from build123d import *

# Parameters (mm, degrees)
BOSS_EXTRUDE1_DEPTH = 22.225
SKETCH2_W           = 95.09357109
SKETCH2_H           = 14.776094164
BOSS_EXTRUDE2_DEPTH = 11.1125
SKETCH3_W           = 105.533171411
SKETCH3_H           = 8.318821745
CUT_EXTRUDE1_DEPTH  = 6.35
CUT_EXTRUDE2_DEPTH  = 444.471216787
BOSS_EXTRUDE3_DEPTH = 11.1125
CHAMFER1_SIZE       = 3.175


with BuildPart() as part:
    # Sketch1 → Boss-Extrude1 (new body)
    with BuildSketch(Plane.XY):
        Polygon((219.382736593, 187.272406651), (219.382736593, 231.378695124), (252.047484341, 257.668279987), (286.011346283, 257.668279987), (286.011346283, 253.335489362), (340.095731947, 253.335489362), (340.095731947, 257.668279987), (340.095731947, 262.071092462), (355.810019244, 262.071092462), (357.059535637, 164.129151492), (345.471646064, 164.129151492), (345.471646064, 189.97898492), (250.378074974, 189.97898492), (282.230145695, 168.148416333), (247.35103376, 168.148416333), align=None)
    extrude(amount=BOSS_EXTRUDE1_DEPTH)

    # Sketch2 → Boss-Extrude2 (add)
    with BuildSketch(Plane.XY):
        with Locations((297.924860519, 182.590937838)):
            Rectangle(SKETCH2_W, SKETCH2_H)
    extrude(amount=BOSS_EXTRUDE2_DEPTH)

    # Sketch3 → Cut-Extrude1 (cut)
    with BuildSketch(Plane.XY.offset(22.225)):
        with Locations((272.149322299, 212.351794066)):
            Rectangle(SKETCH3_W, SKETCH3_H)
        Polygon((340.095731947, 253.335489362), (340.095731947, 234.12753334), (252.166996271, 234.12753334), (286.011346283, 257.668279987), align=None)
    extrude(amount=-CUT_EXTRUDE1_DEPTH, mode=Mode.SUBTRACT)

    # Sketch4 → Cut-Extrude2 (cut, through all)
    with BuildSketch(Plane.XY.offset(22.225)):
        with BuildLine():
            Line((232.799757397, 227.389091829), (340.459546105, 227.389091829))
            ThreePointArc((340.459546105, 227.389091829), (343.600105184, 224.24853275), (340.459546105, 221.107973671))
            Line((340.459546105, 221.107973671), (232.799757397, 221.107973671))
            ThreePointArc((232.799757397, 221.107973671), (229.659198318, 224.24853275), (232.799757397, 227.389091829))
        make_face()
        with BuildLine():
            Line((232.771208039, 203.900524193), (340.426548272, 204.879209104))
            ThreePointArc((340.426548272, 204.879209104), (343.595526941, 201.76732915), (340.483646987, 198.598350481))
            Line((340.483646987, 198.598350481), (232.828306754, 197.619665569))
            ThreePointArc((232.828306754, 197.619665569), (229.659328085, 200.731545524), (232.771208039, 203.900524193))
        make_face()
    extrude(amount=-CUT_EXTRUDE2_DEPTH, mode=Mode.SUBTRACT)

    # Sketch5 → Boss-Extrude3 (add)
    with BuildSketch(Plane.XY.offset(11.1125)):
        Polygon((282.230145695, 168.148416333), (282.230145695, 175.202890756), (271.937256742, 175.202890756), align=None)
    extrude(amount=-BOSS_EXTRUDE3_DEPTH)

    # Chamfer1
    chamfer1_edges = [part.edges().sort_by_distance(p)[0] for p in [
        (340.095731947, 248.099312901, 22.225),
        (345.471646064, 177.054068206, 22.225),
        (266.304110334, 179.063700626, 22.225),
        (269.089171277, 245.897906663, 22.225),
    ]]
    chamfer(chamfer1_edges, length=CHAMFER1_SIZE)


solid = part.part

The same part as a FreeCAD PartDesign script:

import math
import FreeCAD as App
import Part
import Sketcher

V = App.Vector
Q = App.Units.Quantity


def edges_at(feature, points):
    """Names of the edges that pass closest to the given points."""
    edges = feature.Shape.Edges
    near = lambda p: min(range(len(edges)), key=lambda i: edges[i].distToShape(Part.Vertex(*p))[0])
    return sorted({f"Edge{near(p) + 1}" for p in points})

doc = App.newDocument("Part")
body = doc.addObject("PartDesign::Body", "Body")

# Sketch on XY plane
sketch1 = doc.addObject("Sketcher::SketchObject", "Sketch")
body.addObject(sketch1)
sketch1.AttachmentSupport = (doc.XY_Plane, [""])
sketch1.MapMode = "FlatFace"
sketch1.addGeometry([
    Part.LineSegment(V(219.4, 231.4, 0), V(219.4, 187.3, 0)),  # 0
    Part.LineSegment(V(219.4, 187.3, 0), V(247.4, 168.1, 0)),  # 1
    Part.LineSegment(V(247.4, 168.1, 0), V(282.2, 168.1, 0)),  # 2
    Part.LineSegment(V(282.2, 168.1, 0), V(250.4, 190, 0)),  # 3
    Part.LineSegment(V(250.4, 190, 0), V(345.5, 190, 0)),  # 4
    Part.LineSegment(V(345.5, 190, 0), V(345.5, 164.1, 0)),  # 5
    Part.LineSegment(V(345.5, 164.1, 0), V(357.1, 164.1, 0)),  # 6
    Part.LineSegment(V(357.1, 164.1, 0), V(355.8, 262.1, 0)),  # 7
    Part.LineSegment(V(355.8, 262.1, 0), V(340.1, 262.1, 0)),  # 8
    Part.LineSegment(V(340.1, 262.1, 0), V(340.1, 253.3, 0)),  # 9
    Part.LineSegment(V(340.1, 253.3, 0), V(286, 253.3, 0)),  # 10
    Part.LineSegment(V(286, 253.3, 0), V(286, 257.7, 0)),  # 11
    Part.LineSegment(V(286, 257.7, 0), V(252, 257.7, 0)),  # 12
    Part.LineSegment(V(252, 257.7, 0), V(219.4, 231.4, 0)),  # 13
], False)
sketch1.addConstraint([
    Sketcher.Constraint("Coincident", 0, 2, 1, 1),
    Sketcher.Constraint("Coincident", 1, 2, 2, 1),
    Sketcher.Constraint("Coincident", 2, 2, 3, 1),
    Sketcher.Constraint("Coincident", 3, 2, 4, 1),
    Sketcher.Constraint("Coincident", 4, 2, 5, 1),
    Sketcher.Constraint("Coincident", 5, 2, 6, 1),
    Sketcher.Constraint("Coincident", 6, 2, 7, 1),
    Sketcher.Constraint("Coincident", 7, 2, 8, 1),
    Sketcher.Constraint("Coincident", 8, 2, 9, 1),
    Sketcher.Constraint("Coincident", 9, 2, 10, 1),
    Sketcher.Constraint("Coincident", 10, 2, 11, 1),
    Sketcher.Constraint("Coincident", 11, 2, 12, 1),
    Sketcher.Constraint("Coincident", 12, 2, 13, 1),
    Sketcher.Constraint("Coincident", 13, 2, 0, 1),
    Sketcher.Constraint("Vertical", 0),
    Sketcher.Constraint("Horizontal", 2),
    Sketcher.Constraint("Horizontal", 4),
    Sketcher.Constraint("Vertical", 5),
    Sketcher.Constraint("Horizontal", 6),
    Sketcher.Constraint("Horizontal", 8),
    Sketcher.Constraint("Vertical", 9),
    Sketcher.Constraint("Horizontal", 10),
    Sketcher.Constraint("Vertical", 11),
    Sketcher.Constraint("Horizontal", 12),
    Sketcher.Constraint("DistanceX", 2, 1, 2, 2, 34.879112),
    Sketcher.Constraint("DistanceX", 4, 1, 4, 2, 95.093571),
    Sketcher.Constraint("DistanceX", 6, 1, 6, 2, 11.58789),
    Sketcher.Constraint("DistanceX", 12, 2, 12, 1, 33.963862),
    Sketcher.Constraint("DistanceY", 0, 2, 0, 1, 44.106288),
    Sketcher.Constraint("DistanceY", 11, 1, 11, 2, 4.332791),
    Sketcher.Constraint("DistanceX", 2, 2, 4, 2, 63.2415),
    Sketcher.Constraint("DistanceX", 2, 2, 10, 2, 3.781201),
    Sketcher.Constraint("Distance", 1, 33.88145),
    Sketcher.Constraint("Distance", 3, 38.615128),
    Sketcher.Constraint("Distance", 7, 97.949911),
    Sketcher.Constraint("DistanceX", 8, 2, 8, 1, 15.714287),
    Sketcher.Constraint("DistanceX", 10, 2, 10, 1, 54.084386),
    Sketcher.Constraint("DistanceY", 5, 2, 5, 1, 25.849833),
    Sketcher.Constraint("DistanceY", 9, 2, 9, 1, 8.735603),
    Sketcher.Constraint("DistanceY", -1, 1, 5, 2, 164.129151),
    Sketcher.Constraint("DistanceX", -1, 1, 7, 2, 355.810019),
    Sketcher.Constraint("DistanceY", 1, 2, 0, 2, 19.12399),
])
pad1 = doc.addObject("PartDesign::Pad", "Pad")
body.addObject(pad1)
pad1.Profile = sketch1
pad1.Length = Q("0.875 in")

# Sketch on XY plane
sketch2 = doc.addObject("Sketcher::SketchObject", "Sketch001")
body.addObject(sketch2)
sketch2.AttachmentSupport = (doc.XY_Plane, [""])
sketch2.MapMode = "FlatFace"
sketch2.addGeometry([
    Part.LineSegment(V(250, 190, 0), V(250, 175, 0)),
    Part.LineSegment(V(250, 175, 0), V(345, 175, 0)),
    Part.LineSegment(V(345, 175, 0), V(345, 190, 0)),
    Part.LineSegment(V(345, 190, 0), V(250, 190, 0)),
], False)
sketch2.addConstraint([
    Sketcher.Constraint("Coincident", 0, 2, 1, 1),
    Sketcher.Constraint("Coincident", 1, 2, 2, 1),
    Sketcher.Constraint("Coincident", 2, 2, 3, 1),
    Sketcher.Constraint("Coincident", 3, 2, 0, 1),
    Sketcher.Constraint("Vertical", 0),
    Sketcher.Constraint("Horizontal", 1),
    Sketcher.Constraint("Vertical", 2),
    Sketcher.Constraint("Horizontal", 3),
    Sketcher.Constraint("DistanceX", 1, 1, 1, 2, 95.093571),
    Sketcher.Constraint("DistanceY", 0, 2, 0, 1, 14.776094),
    Sketcher.Constraint("DistanceY", -1, 1, 0, 2, 175.202891),
    Sketcher.Constraint("DistanceX", -1, 1, 0, 2, 250.378075),
])
pad2 = doc.addObject("PartDesign::Pad", "Pad001")
body.addObject(pad2)
pad2.Profile = sketch2
pad2.Length = Q("0.4375 in")

# Sketch on XY plane
sketch3 = doc.addObject("Sketcher::SketchObject", "Sketch002")
body.addObject(sketch3)
sketch3.AttachmentSupport = (doc.XY_Plane, [""])
sketch3.MapMode = "FlatFace"
sketch3.AttachmentOffset = App.Placement(V(0, 0, 0.875 * 25.4), App.Rotation())
sketch3.addGeometry([
    Part.LineSegment(V(219, 217, 0), V(219, 208, 0)),  # 0
    Part.LineSegment(V(219, 208, 0), V(325, 208, 0)),  # 1
    Part.LineSegment(V(325, 208, 0), V(325, 217, 0)),  # 2
    Part.LineSegment(V(325, 217, 0), V(219, 217, 0)),  # 3
    Part.LineSegment(V(340, 234, 0), V(340, 253, 0)),  # 4
    Part.LineSegment(V(340, 253, 0), V(286, 258, 0)),  # 5
    Part.LineSegment(V(286, 258, 0), V(252, 234, 0)),  # 6
    Part.LineSegment(V(252, 234, 0), V(340, 234, 0)),  # 7
], False)
sketch3.addConstraint([
    Sketcher.Constraint("Coincident", 0, 2, 1, 1),
    Sketcher.Constraint("Coincident", 1, 2, 2, 1),
    Sketcher.Constraint("Coincident", 2, 2, 3, 1),
    Sketcher.Constraint("Coincident", 3, 2, 0, 1),
    Sketcher.Constraint("Coincident", 4, 2, 5, 1),
    Sketcher.Constraint("Coincident", 5, 2, 6, 1),
    Sketcher.Constraint("Coincident", 6, 2, 7, 1),
    Sketcher.Constraint("Coincident", 7, 2, 4, 1),
    Sketcher.Constraint("Vertical", 0),
    Sketcher.Constraint("Horizontal", 1),
    Sketcher.Constraint("Vertical", 2),
    Sketcher.Constraint("Horizontal", 3),
    Sketcher.Constraint("Vertical", 4),
    Sketcher.Constraint("Horizontal", 7),
    Sketcher.Constraint("DistanceX", 1, 1, 1, 2, 105.533171),
    Sketcher.Constraint("DistanceY", 0, 2, 0, 1, 8.318822),
    Sketcher.Constraint("Distance", 5, 54.257662),
    Sketcher.Constraint("DistanceX", 7, 1, 7, 2, 87.928736),
    Sketcher.Constraint("DistanceY", 4, 1, 4, 2, 19.207956),
    Sketcher.Constraint("DistanceX", -1, 1, 1, 2, 324.915908),
    Sketcher.Constraint("DistanceX", -1, 1, 4, 2, 340.095732),
    Sketcher.Constraint("DistanceY", -1, 1, 4, 2, 253.335489),
    Sketcher.Constraint("DistanceY", -1, 1, 5, 2, 257.66828),
    Sketcher.Constraint("DistanceY", 3, 2, 6, 2, 17.616328),
])
pocket1 = doc.addObject("PartDesign::Pocket", "Pocket")
body.addObject(pocket1)
pocket1.Profile = sketch3
pocket1.Length = Q("0.25 in")

# Sketch on XY plane
sketch4 = doc.addObject("Sketcher::SketchObject", "Sketch003")
body.addObject(sketch4)
sketch4.AttachmentSupport = (doc.XY_Plane, [""])
sketch4.MapMode = "FlatFace"
sketch4.AttachmentOffset = App.Placement(V(0, 0, 0.875 * 25.4), App.Rotation())
sketch4.addGeometry([
    Part.LineSegment(V(340.5, 227.4, 0), V(232.8, 227.4, 0)),  # 0
    Part.ArcOfCircle(Part.Circle(V(232.8, 224.2, 0), V(0, 0, 1), 3.1), math.radians(90), math.radians(270)),  # 1
    Part.LineSegment(V(232.8, 221.1, 0), V(340.5, 221.1, 0)),  # 2
    Part.ArcOfCircle(Part.Circle(V(340.5, 224.2, 0), V(0, 0, 1), 3.1), math.radians(-90), math.radians(90)),  # 3
    Part.LineSegment(V(340.4, 204.9, 0), V(232.8, 203.9, 0)),  # 4
    Part.ArcOfCircle(Part.Circle(V(232.8, 200.8, 0), V(0, 0, 1), 3.1), math.radians(91), math.radians(271)),  # 5
    Part.LineSegment(V(232.8, 197.6, 0), V(340.5, 198.6, 0)),  # 6
    Part.ArcOfCircle(Part.Circle(V(340.5, 201.7, 0), V(0, 0, 1), 3.1), math.radians(-89), math.radians(91)),  # 7
], False)
sketch4.addConstraint([
    Sketcher.Constraint("Tangent", 0, 2, 1, 1),
    Sketcher.Constraint("Tangent", 1, 2, 2, 1),
    Sketcher.Constraint("Tangent", 2, 2, 3, 1),
    Sketcher.Constraint("Tangent", 3, 2, 0, 1),
    Sketcher.Constraint("Tangent", 4, 2, 5, 1),
    Sketcher.Constraint("Tangent", 5, 2, 6, 1),
    Sketcher.Constraint("Tangent", 6, 2, 7, 1),
    Sketcher.Constraint("Tangent", 7, 2, 4, 1),
    Sketcher.Constraint("Horizontal", 0),
    Sketcher.Constraint("Horizontal", 2),
    Sketcher.Constraint("Equal", 3, 5),
    Sketcher.Constraint("Equal", 5, 7),
    Sketcher.Constraint("Vertical", 1, 3, 5, 3),
    Sketcher.Constraint("Radius", 1, 3.140559),
    Sketcher.Constraint("DistanceX", 0, 2, 0, 1, 107.659789),
    Sketcher.Constraint("DistanceX", 4, 2, 5, 2, 0.057099),
    Sketcher.Constraint("DistanceX", 2, 2, 6, 2, 0.024101),
    Sketcher.Constraint("DistanceY", -1, 1, 7, 3, 201.73878),
    Sketcher.Constraint("DistanceY", -1, 1, 0, 2, 227.389092),
    Sketcher.Constraint("DistanceX", -1, 1, 4, 2, 232.771208),
])
pocket2 = doc.addObject("PartDesign::Pocket", "Pocket001")
body.addObject(pocket2)
pocket2.Profile = sketch4
pocket2.Type = "ThroughAll"

# Sketch on XY plane
sketch5 = doc.addObject("Sketcher::SketchObject", "Sketch004")
body.addObject(sketch5)
sketch5.AttachmentSupport = (doc.XY_Plane, [""])
sketch5.MapMode = "FlatFace"
sketch5.AttachmentOffset = App.Placement(V(0, 0, 0.4375 * 25.4), App.Rotation())
sketch5.addGeometry([
    Part.LineSegment(V(282, 168, 0), V(282, 175, 0)),
    Part.LineSegment(V(282, 175, 0), V(272, 175, 0)),
    Part.LineSegment(V(272, 175, 0), V(282, 168, 0)),
], False)
sketch5.addConstraint([
    Sketcher.Constraint("Coincident", 0, 2, 1, 1),
    Sketcher.Constraint("Coincident", 1, 2, 2, 1),
    Sketcher.Constraint("Coincident", 2, 2, 0, 1),
    Sketcher.Constraint("Vertical", 0),
    Sketcher.Constraint("Horizontal", 1),
    Sketcher.Constraint("DistanceX", 1, 2, 1, 1, 10.292889),
    Sketcher.Constraint("Distance", 2, 12.478348),
    Sketcher.Constraint("DistanceY", -1, 1, 0, 2, 175.202891),
    Sketcher.Constraint("DistanceX", -1, 1, 0, 2, 282.230146),
])
pad3 = doc.addObject("PartDesign::Pad", "Pad002")
body.addObject(pad3)
pad3.Profile = sketch5
pad3.Length = Q("0.4375 in")
pad3.Reversed = True
doc.recompute()

chamfer = doc.addObject("PartDesign::Chamfer", "Chamfer")
body.addObject(chamfer)
chamfer.Base = (pad3, edges_at(pad3, [
    (340.096, 248.099, 22.225),
    (345.472, 177.054, 22.225),
    (266.304, 179.064, 22.225),
    (269.089, 245.898, 22.225),
]))
chamfer.Size = Q("0.125 in")

doc.recompute()
